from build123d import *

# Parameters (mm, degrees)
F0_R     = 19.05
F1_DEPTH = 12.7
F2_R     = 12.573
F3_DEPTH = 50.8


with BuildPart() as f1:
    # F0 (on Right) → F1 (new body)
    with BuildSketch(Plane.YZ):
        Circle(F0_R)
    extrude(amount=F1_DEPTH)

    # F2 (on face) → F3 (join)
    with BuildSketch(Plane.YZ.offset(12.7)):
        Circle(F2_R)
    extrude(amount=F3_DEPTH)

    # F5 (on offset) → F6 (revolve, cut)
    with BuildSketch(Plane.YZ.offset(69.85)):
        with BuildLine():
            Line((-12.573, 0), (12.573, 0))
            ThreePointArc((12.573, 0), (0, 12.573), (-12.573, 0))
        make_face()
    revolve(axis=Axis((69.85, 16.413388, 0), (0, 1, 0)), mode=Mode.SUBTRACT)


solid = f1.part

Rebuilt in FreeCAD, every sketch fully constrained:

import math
import FreeCAD as App
import Part
import Sketcher
from FreeCAD import Vector
Q = App.Units.Quantity

doc = App.newDocument("Part")
body = doc.addObject("PartDesign::Body", "Body")

# Sketch on YZ plane
sketch1 = doc.addObject("Sketcher::SketchObject", "Sketch")
body.addObject(sketch1)
sketch1.AttachmentSupport = (doc.YZ_Plane, [""])
sketch1.MapMode = "FlatFace"
sketch1.addGeometry(Part.Circle(Vector(0, 0, 0), Vector(0, 0, 1), 19), False)
sketch1.addConstraint([
    Sketcher.Constraint("Coincident", 0, 3, -1, 1),
    Sketcher.Constraint("Diameter", 0, Q("1.5 in")),
])
pad1 = doc.addObject("PartDesign::Pad", "Pad")
body.addObject(pad1)
pad1.Profile = sketch1
pad1.Length = Q("0.5 in")

# Sketch on YZ plane
sketch2 = doc.addObject("Sketcher::SketchObject", "Sketch001")
body.addObject(sketch2)
sketch2.AttachmentSupport = (doc.YZ_Plane, [""])
sketch2.MapMode = "FlatFace"
sketch2.AttachmentOffset = App.Placement(Vector(0, 0, 0.5 * 25.4), App.Rotation())
sketch2.addGeometry(Part.Circle(Vector(0, 0, 0), Vector(0, 0, 1), 13), False)
sketch2.addConstraint([
    Sketcher.Constraint("Coincident", 0, 3, -1, 1),
    Sketcher.Constraint("Diameter", 0, Q("0.99 in")),
])
pad2 = doc.addObject("PartDesign::Pad", "Pad001")
body.addObject(pad2)
pad2.Profile = sketch2
pad2.Length = Q("2 in")

# Sketch on YZ plane
sketch3 = doc.addObject("Sketcher::SketchObject", "Sketch002")
body.addObject(sketch3)
sketch3.AttachmentSupport = (doc.YZ_Plane, [""])
sketch3.MapMode = "FlatFace"
sketch3.AttachmentOffset = App.Placement(Vector(0, 0, 2.75 * 25.4), App.Rotation())
sketch3.addGeometry([
    Part.LineSegment(Vector(-13, 0, 0), Vector(13, 0, 0)),
    Part.ArcOfCircle(Part.Circle(Vector(0, 0, 0), Vector(0, 0, 1), 13), math.radians(0), math.radians(180)),
], False)
sketch3.addConstraint([
    Sketcher.Constraint("Coincident", 0, 1, 1, 2),
    Sketcher.Constraint("Coincident", 1, 1, 0, 2),
    Sketcher.Constraint("Horizontal", 0),
    Sketcher.Constraint("Coincident", 1, 3, -1, 1),
    Sketcher.Constraint("PointOnObject", 0, 1, -1),
    Sketcher.Constraint("Radius", 1, Q("0.495 in")),
])
groove = doc.addObject("PartDesign::Groove", "Groove")
body.addObject(groove)
groove.Profile = sketch3
groove.ReferenceAxis = (sketch3, ["H_Axis"])
groove.Angle = 360

doc.recompute()
